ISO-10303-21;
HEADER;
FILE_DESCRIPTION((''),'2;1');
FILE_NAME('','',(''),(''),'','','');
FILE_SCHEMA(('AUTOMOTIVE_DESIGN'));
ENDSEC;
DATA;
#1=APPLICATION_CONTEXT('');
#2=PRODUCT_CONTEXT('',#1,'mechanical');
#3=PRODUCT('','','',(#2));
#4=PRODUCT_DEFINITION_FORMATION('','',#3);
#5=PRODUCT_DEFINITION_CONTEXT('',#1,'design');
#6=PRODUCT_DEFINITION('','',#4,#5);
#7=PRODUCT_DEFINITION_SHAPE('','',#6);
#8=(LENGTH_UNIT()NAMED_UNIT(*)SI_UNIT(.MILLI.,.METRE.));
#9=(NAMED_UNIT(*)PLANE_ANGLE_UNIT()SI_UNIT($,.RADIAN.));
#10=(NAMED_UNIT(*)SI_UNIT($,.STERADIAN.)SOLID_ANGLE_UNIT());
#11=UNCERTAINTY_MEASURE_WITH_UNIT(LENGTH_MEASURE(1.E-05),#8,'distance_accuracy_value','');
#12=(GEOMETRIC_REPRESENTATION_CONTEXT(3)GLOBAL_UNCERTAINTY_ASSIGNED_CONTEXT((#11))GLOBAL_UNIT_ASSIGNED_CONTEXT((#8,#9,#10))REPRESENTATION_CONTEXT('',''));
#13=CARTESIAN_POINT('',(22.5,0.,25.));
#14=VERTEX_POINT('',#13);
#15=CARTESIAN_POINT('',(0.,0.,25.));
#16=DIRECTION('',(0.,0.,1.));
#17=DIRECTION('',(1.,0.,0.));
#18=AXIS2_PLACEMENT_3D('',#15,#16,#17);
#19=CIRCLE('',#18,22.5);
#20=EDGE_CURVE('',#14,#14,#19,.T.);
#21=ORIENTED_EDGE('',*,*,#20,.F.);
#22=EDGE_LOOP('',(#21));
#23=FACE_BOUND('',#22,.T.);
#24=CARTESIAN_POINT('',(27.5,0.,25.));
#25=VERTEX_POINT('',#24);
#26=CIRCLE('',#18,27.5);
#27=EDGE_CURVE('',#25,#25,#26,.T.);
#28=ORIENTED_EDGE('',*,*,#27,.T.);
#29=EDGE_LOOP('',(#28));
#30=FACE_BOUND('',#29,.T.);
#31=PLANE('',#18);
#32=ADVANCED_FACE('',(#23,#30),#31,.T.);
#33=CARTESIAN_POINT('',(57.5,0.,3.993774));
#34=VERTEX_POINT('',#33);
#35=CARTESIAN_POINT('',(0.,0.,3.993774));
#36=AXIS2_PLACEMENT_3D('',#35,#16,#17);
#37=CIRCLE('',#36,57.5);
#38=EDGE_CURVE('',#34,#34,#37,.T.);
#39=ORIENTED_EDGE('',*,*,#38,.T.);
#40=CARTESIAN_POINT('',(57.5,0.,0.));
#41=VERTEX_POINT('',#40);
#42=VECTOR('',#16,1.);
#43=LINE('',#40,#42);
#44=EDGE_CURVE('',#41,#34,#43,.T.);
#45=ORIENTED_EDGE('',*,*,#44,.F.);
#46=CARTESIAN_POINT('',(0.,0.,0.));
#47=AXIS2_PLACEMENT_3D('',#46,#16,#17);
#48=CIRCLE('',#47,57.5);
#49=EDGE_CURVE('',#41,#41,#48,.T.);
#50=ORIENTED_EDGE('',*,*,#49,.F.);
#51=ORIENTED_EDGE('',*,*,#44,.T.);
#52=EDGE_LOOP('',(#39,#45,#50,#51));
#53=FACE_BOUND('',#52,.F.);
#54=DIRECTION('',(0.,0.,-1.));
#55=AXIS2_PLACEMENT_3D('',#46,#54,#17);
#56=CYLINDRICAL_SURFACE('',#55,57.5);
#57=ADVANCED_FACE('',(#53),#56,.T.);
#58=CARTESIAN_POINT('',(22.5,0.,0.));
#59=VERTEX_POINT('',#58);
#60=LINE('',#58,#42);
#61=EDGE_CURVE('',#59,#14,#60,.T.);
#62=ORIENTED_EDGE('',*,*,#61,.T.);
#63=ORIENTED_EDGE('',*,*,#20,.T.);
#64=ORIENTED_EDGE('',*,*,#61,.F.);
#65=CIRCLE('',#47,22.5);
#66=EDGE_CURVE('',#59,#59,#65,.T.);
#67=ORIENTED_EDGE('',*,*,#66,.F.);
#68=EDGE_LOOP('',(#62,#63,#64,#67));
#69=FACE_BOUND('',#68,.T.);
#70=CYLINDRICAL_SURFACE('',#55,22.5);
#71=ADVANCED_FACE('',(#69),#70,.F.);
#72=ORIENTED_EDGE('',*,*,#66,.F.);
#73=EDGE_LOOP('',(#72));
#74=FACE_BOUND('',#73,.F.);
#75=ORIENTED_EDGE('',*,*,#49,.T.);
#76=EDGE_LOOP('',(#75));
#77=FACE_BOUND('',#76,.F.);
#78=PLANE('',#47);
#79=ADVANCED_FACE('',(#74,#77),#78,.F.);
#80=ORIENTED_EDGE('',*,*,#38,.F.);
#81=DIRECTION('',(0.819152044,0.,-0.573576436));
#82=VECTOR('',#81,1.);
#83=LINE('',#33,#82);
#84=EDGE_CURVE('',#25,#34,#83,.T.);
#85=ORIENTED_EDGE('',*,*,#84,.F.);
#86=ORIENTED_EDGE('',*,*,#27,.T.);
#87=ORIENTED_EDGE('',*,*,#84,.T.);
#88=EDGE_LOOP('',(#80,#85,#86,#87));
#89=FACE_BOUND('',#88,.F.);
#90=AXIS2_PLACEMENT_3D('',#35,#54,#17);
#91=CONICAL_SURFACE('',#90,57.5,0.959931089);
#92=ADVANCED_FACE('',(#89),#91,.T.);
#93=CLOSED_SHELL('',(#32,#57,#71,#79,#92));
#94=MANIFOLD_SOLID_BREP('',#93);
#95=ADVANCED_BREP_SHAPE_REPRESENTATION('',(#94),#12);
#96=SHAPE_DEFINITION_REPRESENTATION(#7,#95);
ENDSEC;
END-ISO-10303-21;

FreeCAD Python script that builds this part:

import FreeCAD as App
import Part
import Sketcher


def edges_at(feature, points):
    """Names of the edges that pass closest to the given points."""
    edges = feature.Shape.Edges
    near = lambda p: min(range(len(edges)), key=lambda i: edges[i].distToShape(Part.Vertex(*p))[0])
    return sorted({f"Edge{near(p) + 1}" for p in points})

doc = App.newDocument("Part")
body = doc.addObject("PartDesign::Body", "Body")

sketch1 = body.newObject("Sketcher::SketchObject", "Sketch")
sketch1.AttachmentSupport = (doc.getObject("XY_Plane"), [""])
sketch1.MapMode = "FlatFace"
sketch1.addGeometry([
    Part.Circle(App.Vector(0, 0, 0), App.Vector(0, 0, 1), 57.5),
    Part.Circle(App.Vector(0, 0, 0), App.Vector(0, 0, 1), 22.5),
], False)
sketch1.addConstraint([
    Sketcher.Constraint("Coincident", 0, 3, -1, 1),
    Sketcher.Constraint("Coincident", 1, 3, -1, 1),
    Sketcher.Constraint("Diameter", 0, 115.0),
    Sketcher.Constraint("Diameter", 1, 45.0),
])
pad1 = body.newObject("PartDesign::Pad", "Pad")
pad1.Profile = sketch1
pad1.Length = 25
doc.recompute()

chamfer = body.newObject("PartDesign::Chamfer", "Chamfer")
chamfer.Base = (pad1, edges_at(pad1, [(-57.5, 0, 25)]))
chamfer.ChamferType = "Two distances"
chamfer.Size = 30
chamfer.Size2 = 21.006226
chamfer.FlipDirection = True

doc.recompute()
